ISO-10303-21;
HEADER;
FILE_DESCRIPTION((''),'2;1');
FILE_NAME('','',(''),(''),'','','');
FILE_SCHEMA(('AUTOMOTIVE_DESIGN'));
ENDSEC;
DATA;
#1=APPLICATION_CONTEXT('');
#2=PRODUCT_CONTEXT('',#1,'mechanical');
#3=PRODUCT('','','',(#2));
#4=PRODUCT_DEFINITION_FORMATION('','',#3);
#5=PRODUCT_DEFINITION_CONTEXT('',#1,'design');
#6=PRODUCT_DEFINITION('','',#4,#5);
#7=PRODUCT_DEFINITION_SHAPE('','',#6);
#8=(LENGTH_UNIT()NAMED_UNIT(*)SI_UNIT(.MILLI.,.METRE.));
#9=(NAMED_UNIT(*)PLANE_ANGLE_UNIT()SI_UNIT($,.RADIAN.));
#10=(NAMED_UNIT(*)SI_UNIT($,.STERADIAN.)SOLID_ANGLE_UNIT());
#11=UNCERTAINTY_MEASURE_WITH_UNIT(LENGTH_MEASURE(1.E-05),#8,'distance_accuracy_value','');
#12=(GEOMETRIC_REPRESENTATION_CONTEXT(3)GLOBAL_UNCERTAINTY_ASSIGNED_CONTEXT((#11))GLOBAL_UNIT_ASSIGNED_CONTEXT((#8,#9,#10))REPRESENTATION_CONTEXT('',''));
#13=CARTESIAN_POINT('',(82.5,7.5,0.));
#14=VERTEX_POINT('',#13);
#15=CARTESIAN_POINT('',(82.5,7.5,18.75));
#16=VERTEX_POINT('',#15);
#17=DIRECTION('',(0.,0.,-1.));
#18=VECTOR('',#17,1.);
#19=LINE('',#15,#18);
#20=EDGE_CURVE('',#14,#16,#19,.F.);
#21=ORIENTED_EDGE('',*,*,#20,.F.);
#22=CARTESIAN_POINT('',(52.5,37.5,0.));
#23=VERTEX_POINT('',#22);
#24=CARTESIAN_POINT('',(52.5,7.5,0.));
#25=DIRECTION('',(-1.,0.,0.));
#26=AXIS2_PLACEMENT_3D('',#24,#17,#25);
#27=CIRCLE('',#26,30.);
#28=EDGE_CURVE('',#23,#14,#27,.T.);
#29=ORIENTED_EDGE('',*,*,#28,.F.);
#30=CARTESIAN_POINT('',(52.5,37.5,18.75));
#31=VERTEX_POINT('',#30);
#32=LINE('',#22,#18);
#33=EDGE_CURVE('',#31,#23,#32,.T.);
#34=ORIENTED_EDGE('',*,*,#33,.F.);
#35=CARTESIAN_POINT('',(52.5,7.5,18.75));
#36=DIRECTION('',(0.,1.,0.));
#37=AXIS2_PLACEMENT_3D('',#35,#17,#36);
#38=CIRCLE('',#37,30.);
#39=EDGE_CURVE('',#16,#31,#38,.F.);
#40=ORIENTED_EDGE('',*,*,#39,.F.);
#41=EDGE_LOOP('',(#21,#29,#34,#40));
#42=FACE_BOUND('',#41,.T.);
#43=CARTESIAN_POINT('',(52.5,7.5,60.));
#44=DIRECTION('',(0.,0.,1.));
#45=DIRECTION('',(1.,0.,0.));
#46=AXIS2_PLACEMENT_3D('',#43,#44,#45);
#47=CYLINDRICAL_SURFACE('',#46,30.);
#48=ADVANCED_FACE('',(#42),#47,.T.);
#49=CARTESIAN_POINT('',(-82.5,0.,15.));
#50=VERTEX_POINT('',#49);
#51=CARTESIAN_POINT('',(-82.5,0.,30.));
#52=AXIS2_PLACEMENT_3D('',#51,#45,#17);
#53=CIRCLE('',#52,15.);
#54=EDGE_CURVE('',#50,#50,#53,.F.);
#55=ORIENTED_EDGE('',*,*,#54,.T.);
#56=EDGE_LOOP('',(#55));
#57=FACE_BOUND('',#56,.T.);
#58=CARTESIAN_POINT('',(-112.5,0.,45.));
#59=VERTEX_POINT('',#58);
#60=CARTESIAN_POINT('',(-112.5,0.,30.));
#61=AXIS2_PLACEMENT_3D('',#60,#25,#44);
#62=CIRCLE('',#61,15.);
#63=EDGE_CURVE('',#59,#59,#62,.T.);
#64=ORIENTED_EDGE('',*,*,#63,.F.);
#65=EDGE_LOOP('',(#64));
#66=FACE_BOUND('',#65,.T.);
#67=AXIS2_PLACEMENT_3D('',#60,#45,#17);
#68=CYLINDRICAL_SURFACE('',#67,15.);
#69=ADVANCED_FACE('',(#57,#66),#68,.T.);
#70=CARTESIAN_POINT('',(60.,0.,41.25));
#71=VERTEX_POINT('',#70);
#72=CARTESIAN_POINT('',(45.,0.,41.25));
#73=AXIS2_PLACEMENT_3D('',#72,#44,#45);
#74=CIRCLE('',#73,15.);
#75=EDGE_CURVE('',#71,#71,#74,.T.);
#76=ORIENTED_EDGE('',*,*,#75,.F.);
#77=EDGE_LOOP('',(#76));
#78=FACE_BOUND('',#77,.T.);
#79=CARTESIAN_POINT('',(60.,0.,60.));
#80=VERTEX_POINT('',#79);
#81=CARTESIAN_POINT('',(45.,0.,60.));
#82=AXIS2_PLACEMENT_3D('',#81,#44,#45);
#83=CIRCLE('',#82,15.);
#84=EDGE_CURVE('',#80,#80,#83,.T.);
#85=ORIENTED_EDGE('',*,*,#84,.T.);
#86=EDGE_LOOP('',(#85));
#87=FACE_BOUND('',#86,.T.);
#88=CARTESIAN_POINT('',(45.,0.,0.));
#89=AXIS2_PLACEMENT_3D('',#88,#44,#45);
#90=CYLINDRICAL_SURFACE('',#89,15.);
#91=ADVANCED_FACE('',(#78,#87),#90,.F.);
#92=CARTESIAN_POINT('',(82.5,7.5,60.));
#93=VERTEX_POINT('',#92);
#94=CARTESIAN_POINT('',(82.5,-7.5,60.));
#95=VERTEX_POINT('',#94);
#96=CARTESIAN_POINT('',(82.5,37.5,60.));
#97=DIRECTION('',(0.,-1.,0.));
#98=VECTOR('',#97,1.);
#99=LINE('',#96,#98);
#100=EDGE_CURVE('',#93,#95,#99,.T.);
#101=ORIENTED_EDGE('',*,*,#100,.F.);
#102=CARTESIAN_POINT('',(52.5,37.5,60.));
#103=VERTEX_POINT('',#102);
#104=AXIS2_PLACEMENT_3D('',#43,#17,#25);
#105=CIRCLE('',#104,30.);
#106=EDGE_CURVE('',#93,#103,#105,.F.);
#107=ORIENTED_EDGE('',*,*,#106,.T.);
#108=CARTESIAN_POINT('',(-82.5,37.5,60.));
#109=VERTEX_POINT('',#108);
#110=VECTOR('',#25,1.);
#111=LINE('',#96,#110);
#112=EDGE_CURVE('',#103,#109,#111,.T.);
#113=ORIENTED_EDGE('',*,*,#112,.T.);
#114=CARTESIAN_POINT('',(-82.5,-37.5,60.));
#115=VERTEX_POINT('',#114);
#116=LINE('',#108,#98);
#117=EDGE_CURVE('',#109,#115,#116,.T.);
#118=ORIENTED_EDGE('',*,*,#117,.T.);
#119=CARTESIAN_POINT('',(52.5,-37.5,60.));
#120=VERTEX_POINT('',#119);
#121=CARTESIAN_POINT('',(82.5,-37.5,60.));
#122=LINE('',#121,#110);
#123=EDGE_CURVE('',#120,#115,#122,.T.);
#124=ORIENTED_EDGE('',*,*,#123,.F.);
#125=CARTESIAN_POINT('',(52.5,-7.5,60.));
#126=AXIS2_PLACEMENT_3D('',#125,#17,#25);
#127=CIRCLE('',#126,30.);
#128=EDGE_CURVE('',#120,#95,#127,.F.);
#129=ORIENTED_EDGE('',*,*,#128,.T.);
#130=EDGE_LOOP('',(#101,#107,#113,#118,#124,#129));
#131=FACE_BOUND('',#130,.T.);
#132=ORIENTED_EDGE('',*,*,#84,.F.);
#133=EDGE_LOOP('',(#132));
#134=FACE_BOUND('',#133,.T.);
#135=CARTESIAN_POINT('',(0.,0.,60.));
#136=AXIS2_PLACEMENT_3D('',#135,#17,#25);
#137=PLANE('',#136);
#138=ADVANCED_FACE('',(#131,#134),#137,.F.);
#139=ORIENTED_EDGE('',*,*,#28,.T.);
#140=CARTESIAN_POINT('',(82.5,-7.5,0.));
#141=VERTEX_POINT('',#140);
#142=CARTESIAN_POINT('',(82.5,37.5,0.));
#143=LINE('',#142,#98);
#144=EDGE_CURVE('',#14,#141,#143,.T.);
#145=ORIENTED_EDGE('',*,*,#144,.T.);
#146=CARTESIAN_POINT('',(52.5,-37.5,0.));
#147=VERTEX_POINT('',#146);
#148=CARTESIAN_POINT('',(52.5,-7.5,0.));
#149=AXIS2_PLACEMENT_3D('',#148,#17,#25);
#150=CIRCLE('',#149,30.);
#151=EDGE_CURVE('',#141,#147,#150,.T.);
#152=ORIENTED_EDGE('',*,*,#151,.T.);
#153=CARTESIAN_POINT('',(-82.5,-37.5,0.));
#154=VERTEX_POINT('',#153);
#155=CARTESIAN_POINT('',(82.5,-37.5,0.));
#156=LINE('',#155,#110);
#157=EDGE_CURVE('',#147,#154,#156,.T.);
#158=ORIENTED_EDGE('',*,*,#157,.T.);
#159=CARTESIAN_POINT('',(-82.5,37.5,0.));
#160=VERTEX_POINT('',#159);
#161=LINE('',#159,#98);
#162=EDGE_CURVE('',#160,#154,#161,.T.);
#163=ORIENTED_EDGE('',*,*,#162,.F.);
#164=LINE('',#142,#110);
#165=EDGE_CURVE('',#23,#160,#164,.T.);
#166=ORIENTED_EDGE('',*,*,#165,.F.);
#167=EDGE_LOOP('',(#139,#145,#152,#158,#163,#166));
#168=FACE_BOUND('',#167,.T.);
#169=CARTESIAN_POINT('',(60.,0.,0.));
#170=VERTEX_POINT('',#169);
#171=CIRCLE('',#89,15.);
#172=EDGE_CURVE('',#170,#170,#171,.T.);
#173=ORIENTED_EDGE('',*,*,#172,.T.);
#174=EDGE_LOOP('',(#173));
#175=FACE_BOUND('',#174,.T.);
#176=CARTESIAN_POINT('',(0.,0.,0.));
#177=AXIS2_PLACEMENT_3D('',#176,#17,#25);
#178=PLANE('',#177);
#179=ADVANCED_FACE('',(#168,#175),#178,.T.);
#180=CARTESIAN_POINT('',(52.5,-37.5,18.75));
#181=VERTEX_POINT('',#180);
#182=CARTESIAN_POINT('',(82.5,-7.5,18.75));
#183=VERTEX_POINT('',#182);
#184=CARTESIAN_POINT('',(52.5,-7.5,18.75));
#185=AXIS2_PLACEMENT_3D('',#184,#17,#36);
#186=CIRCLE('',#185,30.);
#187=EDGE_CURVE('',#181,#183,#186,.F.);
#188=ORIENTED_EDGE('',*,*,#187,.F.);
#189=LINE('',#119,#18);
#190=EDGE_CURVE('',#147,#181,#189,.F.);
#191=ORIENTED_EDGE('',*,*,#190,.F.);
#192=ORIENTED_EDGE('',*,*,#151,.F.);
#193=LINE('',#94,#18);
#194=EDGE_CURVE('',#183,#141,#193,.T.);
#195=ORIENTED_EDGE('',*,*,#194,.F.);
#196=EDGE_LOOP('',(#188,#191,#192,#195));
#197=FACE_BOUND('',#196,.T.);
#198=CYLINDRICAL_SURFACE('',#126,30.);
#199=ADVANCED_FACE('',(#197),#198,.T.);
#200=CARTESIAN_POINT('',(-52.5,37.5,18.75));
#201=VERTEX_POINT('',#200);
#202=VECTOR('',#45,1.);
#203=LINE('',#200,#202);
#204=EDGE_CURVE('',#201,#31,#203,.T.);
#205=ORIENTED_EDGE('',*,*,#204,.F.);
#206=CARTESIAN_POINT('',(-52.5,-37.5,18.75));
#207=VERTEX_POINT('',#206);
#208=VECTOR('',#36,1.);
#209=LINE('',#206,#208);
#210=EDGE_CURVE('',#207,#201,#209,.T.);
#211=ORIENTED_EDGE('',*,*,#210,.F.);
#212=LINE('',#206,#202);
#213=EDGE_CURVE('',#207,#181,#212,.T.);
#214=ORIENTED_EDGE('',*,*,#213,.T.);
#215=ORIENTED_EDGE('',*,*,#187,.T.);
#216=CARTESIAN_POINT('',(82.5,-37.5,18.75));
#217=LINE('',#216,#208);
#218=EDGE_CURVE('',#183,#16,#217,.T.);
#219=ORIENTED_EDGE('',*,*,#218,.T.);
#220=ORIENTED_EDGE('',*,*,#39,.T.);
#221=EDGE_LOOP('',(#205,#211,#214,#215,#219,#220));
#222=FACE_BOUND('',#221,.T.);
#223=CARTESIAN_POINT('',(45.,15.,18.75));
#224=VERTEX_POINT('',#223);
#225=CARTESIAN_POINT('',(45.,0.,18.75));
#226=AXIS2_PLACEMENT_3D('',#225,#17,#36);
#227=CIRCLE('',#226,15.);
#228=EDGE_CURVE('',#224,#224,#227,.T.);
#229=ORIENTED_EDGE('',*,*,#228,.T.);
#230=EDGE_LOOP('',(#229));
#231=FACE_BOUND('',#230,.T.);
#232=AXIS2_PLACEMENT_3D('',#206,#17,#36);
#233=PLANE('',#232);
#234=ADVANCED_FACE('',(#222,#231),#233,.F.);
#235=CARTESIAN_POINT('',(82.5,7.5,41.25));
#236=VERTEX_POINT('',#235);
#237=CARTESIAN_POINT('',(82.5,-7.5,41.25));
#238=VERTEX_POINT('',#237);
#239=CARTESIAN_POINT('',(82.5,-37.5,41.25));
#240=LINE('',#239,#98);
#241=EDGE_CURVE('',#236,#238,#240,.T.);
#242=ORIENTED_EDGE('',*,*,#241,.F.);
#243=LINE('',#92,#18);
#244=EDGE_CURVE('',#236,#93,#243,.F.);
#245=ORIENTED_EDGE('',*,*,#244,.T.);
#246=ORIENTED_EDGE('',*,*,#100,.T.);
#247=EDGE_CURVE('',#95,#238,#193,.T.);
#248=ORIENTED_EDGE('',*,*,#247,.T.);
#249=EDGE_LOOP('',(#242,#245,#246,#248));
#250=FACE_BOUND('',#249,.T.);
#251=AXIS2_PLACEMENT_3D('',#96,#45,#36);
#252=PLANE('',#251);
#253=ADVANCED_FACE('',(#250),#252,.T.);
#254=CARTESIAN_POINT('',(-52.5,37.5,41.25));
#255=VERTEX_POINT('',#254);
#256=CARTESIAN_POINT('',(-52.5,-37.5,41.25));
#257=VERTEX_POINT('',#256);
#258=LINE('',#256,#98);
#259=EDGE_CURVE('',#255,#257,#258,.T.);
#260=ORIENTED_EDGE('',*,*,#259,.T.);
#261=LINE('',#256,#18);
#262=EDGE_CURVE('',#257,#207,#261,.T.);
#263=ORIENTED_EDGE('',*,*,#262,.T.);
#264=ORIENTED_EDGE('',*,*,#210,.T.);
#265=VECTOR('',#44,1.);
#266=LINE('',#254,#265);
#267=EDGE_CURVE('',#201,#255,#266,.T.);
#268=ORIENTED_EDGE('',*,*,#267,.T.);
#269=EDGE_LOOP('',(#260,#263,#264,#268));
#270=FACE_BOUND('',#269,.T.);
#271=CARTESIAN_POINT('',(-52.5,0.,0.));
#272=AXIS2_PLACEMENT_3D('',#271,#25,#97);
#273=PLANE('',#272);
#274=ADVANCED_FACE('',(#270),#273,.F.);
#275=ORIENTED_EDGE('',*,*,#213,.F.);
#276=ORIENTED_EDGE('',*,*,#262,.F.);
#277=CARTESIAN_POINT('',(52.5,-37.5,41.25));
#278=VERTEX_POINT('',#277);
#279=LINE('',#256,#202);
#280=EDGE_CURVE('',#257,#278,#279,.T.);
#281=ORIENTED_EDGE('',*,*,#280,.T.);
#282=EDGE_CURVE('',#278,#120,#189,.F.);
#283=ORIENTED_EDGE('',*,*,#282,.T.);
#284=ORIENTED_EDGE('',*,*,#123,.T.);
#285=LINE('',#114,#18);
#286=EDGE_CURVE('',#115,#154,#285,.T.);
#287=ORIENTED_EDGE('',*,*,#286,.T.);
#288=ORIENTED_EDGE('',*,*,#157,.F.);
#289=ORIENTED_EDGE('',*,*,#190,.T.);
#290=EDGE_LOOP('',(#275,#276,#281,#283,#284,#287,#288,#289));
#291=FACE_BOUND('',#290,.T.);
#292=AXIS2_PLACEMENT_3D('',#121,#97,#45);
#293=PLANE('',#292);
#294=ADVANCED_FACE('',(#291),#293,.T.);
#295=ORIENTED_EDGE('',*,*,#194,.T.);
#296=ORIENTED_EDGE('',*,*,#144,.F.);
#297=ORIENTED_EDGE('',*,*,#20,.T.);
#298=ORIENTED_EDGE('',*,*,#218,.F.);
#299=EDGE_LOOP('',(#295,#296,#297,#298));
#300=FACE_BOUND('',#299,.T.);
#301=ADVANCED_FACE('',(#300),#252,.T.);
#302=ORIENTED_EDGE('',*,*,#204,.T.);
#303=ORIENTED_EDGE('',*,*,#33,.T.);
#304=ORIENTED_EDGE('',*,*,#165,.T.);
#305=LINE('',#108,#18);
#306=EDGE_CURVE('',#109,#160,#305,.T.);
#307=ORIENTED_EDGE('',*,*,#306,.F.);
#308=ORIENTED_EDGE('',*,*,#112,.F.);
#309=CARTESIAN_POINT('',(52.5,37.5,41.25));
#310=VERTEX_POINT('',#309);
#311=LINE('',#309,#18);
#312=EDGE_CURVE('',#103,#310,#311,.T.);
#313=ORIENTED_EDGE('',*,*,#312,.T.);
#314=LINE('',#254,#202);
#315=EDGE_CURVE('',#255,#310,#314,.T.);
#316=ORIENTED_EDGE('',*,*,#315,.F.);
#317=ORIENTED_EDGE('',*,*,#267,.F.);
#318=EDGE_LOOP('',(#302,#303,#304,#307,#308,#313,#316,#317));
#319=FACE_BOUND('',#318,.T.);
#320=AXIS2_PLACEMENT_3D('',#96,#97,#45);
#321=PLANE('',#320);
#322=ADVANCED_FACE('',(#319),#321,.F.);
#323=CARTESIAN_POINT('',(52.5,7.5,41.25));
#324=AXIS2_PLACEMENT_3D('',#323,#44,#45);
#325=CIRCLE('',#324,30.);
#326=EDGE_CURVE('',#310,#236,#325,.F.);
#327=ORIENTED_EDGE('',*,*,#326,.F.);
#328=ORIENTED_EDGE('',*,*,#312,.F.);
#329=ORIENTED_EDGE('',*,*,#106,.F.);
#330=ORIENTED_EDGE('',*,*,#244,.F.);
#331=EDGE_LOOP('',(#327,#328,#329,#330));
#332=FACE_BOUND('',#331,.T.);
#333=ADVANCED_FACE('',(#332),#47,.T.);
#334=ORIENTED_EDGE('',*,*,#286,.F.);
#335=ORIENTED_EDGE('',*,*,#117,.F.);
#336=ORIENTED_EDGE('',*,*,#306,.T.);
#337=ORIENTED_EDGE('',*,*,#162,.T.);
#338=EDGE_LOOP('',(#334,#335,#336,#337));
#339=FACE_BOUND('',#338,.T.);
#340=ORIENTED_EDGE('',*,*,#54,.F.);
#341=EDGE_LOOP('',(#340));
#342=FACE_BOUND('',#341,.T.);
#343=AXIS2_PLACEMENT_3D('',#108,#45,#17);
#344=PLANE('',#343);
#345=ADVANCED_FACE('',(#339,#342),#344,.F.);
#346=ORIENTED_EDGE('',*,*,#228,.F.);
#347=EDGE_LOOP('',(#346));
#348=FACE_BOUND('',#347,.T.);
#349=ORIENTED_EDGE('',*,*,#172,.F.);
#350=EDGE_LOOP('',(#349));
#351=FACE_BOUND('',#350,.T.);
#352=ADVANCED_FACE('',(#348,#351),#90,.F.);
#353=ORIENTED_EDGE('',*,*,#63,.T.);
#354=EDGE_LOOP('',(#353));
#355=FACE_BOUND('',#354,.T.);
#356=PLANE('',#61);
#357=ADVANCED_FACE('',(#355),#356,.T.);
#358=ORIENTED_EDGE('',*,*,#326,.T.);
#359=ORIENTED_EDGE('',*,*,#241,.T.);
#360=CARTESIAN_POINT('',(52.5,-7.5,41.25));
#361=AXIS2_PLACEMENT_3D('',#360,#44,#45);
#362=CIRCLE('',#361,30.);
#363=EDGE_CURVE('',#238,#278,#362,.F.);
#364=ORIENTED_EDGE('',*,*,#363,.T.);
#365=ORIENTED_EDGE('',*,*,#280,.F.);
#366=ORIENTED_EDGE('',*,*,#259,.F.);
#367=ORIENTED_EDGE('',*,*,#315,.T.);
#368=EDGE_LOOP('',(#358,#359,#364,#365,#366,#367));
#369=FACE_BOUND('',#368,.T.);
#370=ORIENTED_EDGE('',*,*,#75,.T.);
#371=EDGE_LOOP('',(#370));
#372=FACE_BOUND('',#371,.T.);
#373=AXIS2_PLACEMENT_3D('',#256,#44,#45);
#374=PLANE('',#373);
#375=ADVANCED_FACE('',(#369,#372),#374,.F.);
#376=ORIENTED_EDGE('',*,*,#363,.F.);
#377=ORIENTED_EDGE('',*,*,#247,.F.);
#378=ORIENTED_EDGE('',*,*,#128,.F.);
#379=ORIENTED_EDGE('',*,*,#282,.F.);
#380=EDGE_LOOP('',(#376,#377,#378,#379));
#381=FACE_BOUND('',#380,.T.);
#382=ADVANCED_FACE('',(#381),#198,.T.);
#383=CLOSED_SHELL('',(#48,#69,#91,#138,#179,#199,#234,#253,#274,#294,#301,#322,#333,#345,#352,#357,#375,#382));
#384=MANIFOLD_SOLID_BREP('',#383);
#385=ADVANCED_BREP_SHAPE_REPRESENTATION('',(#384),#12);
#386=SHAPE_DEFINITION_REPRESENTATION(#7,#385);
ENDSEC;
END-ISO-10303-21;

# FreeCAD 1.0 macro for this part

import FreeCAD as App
import Part
import Sketcher


def edges_at(feature, points):
    """Names of the edges that pass closest to the given points."""
    edges = feature.Shape.Edges
    near = lambda p: min(range(len(edges)), key=lambda i: edges[i].distToShape(Part.Vertex(*p))[0])
    return sorted({f"Edge{near(p) + 1}" for p in points})

doc = App.newDocument("Part")
body = doc.addObject("PartDesign::Body", "Body")

# Sketch on XY plane
sketch1 = doc.addObject("Sketcher::SketchObject", "Sketch")
body.addObject(sketch1)
sketch1.AttachmentSupport = (doc.XY_Plane, [""])
sketch1.MapMode = "FlatFace"
sketch1.addGeometry([
    Part.LineSegment(App.Vector(-82.5, 37.5, 0), App.Vector(-82.5, -37.5, 0)),
    Part.LineSegment(App.Vector(-82.5, -37.5, 0), App.Vector(82.5, -37.5, 0)),
    Part.LineSegment(App.Vector(82.5, -37.5, 0), App.Vector(82.5, 37.5, 0)),
    Part.LineSegment(App.Vector(82.5, 37.5, 0), App.Vector(-82.5, 37.5, 0)),
], False)
sketch1.addConstraint([
    Sketcher.Constraint("Coincident", 0, 2, 1, 1),
    Sketcher.Constraint("Coincident", 1, 2, 2, 1),
    Sketcher.Constraint("Coincident", 2, 2, 3, 1),
    Sketcher.Constraint("Coincident", 3, 2, 0, 1),
    Sketcher.Constraint("Vertical", 0),
    Sketcher.Constraint("Horizontal", 1),
    Sketcher.Constraint("Vertical", 2),
    Sketcher.Constraint("Horizontal", 3),
    Sketcher.Constraint("Symmetric", 0, 2, 2, 2, -1, 1),
    Sketcher.Constraint("DistanceX", 1, 1, 1, 2, 165.0),
    Sketcher.Constraint("DistanceY", 0, 2, 0, 1, 75.0),
])
pad1 = doc.addObject("PartDesign::Pad", "Pad")
body.addObject(pad1)
pad1.Profile = sketch1
pad1.Length = 60

# Sketch on YZ plane
sketch2 = doc.addObject("Sketcher::SketchObject", "Sketch001")
body.addObject(sketch2)
sketch2.AttachmentSupport = (doc.YZ_Plane, [""])
sketch2.MapMode = "FlatFace"
sketch2.AttachmentOffset = App.Placement(App.Vector(0, 0, 82.5), App.Rotation())
sketch2.addGeometry([
    Part.LineSegment(App.Vector(37.5, 41.25, 0), App.Vector(-37.5, 41.25, 0)),
    Part.LineSegment(App.Vector(-37.5, 41.25, 0), App.Vector(-37.5, 18.75, 0)),
    Part.LineSegment(App.Vector(-37.5, 18.75, 0), App.Vector(37.5, 18.75, 0)),
    Part.LineSegment(App.Vector(37.5, 18.75, 0), App.Vector(37.5, 41.25, 0)),
], False)
sketch2.addConstraint([
    Sketcher.Constraint("Coincident", 0, 2, 1, 1),
    Sketcher.Constraint("Coincident", 1, 2, 2, 1),
    Sketcher.Constraint("Coincident", 2, 2, 3, 1),
    Sketcher.Constraint("Coincident", 3, 2, 0, 1),
    Sketcher.Constraint("Horizontal", 0),
    Sketcher.Constraint("Vertical", 1),
    Sketcher.Constraint("Horizontal", 2),
    Sketcher.Constraint("Vertical", 3),
    Sketcher.Constraint("DistanceX", 0, 2, 0, 1, 75.0),
    Sketcher.Constraint("DistanceY", 1, 2, 1, 1, 22.5),
    Sketcher.Constraint("DistanceX", 0, 2, -1, 1, 37.5),
    Sketcher.Constraint("DistanceY", -1, 1, 0, 2, 41.25),
])
pocket1 = doc.addObject("PartDesign::Pocket", "Pocket")
body.addObject(pocket1)
pocket1.Profile = sketch2
pocket1.Length = 135
doc.recompute()

fillet = doc.addObject("PartDesign::Fillet", "Fillet")
body.addObject(fillet)
fillet.Base = (pocket1, edges_at(pocket1, [
    (82.5, -37.5, 9.375),
    (82.5, 37.5, 9.375),
    (82.5, 37.5, 50.625),
    (82.5, -37.5, 50.625),
]))
fillet.Radius = 30

# Sketch on XY plane
sketch3 = doc.addObject("Sketcher::SketchObject", "Sketch002")
body.addObject(sketch3)
sketch3.AttachmentSupport = (doc.XY_Plane, [""])
sketch3.MapMode = "FlatFace"
sketch3.AttachmentOffset = App.Placement(App.Vector(0, 0, 60), App.Rotation())
sketch3.addGeometry(Part.Circle(App.Vector(45, 0, 0), App.Vector(0, 0, 1), 15), False)
sketch3.addConstraint([
    Sketcher.Constraint("PointOnObject", 0, 3, -1),
    Sketcher.Constraint("Diameter", 0, 30.0),
    Sketcher.Constraint("DistanceX", -1, 1, 0, 3, 45.0),
])
pocket2 = doc.addObject("PartDesign::Pocket", "Pocket001")
body.addObject(pocket2)
pocket2.Profile = sketch3
pocket2.Type = "ThroughAll"

# Sketch on YZ plane
sketch4 = doc.addObject("Sketcher::SketchObject", "Sketch003")
body.addObject(sketch4)
sketch4.AttachmentSupport = (doc.YZ_Plane, [""])
sketch4.MapMode = "FlatFace"
sketch4.AttachmentOffset = App.Placement(App.Vector(0, 0, -82.5), App.Rotation())
sketch4.addGeometry(Part.Circle(App.Vector(0, 30, 0), App.Vector(0, 0, 1), 15), False)
sketch4.addConstraint([
    Sketcher.Constraint("PointOnObject", 0, 3, -2),
    Sketcher.Constraint("Diameter", 0, 30.0),
    Sketcher.Constraint("DistanceY", -1, 1, 0, 3, 30.0),
])
pad2 = doc.addObject("PartDesign::Pad", "Pad001")
body.addObject(pad2)
pad2.Profile = sketch4
pad2.Length = 30
pad2.Reversed = True

doc.recompute()
